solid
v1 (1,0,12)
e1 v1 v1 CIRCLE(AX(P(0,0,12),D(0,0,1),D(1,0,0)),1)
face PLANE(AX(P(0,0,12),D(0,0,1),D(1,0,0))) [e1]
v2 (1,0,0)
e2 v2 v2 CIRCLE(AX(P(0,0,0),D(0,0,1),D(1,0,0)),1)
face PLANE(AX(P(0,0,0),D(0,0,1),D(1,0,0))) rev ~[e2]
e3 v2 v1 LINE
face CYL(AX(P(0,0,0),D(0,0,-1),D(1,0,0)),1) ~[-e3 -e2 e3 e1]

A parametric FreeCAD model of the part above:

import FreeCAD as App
import Part
import Sketcher
from FreeCAD import Vector
Q = App.Units.Quantity

doc = App.newDocument("Part")
body = doc.addObject("PartDesign::Body", "Body")

sketch1 = body.newObject("Sketcher::SketchObject", "Sketch")
sketch1.AttachmentSupport = (doc.getObject("XY_Plane"), [""])
sketch1.MapMode = "FlatFace"
sketch1.addGeometry(Part.Circle(Vector(0, 0, 0), Vector(0, 0, 1), 1), False)
sketch1.addConstraint([
    Sketcher.Constraint("Coincident", 0, 3, -1, 1),
    Sketcher.Constraint("Diameter", 0, Q("2 mm")),
])
pad1 = body.newObject("PartDesign::Pad", "Pad")
pad1.Profile = sketch1
pad1.Length = 12

doc.recompute()
